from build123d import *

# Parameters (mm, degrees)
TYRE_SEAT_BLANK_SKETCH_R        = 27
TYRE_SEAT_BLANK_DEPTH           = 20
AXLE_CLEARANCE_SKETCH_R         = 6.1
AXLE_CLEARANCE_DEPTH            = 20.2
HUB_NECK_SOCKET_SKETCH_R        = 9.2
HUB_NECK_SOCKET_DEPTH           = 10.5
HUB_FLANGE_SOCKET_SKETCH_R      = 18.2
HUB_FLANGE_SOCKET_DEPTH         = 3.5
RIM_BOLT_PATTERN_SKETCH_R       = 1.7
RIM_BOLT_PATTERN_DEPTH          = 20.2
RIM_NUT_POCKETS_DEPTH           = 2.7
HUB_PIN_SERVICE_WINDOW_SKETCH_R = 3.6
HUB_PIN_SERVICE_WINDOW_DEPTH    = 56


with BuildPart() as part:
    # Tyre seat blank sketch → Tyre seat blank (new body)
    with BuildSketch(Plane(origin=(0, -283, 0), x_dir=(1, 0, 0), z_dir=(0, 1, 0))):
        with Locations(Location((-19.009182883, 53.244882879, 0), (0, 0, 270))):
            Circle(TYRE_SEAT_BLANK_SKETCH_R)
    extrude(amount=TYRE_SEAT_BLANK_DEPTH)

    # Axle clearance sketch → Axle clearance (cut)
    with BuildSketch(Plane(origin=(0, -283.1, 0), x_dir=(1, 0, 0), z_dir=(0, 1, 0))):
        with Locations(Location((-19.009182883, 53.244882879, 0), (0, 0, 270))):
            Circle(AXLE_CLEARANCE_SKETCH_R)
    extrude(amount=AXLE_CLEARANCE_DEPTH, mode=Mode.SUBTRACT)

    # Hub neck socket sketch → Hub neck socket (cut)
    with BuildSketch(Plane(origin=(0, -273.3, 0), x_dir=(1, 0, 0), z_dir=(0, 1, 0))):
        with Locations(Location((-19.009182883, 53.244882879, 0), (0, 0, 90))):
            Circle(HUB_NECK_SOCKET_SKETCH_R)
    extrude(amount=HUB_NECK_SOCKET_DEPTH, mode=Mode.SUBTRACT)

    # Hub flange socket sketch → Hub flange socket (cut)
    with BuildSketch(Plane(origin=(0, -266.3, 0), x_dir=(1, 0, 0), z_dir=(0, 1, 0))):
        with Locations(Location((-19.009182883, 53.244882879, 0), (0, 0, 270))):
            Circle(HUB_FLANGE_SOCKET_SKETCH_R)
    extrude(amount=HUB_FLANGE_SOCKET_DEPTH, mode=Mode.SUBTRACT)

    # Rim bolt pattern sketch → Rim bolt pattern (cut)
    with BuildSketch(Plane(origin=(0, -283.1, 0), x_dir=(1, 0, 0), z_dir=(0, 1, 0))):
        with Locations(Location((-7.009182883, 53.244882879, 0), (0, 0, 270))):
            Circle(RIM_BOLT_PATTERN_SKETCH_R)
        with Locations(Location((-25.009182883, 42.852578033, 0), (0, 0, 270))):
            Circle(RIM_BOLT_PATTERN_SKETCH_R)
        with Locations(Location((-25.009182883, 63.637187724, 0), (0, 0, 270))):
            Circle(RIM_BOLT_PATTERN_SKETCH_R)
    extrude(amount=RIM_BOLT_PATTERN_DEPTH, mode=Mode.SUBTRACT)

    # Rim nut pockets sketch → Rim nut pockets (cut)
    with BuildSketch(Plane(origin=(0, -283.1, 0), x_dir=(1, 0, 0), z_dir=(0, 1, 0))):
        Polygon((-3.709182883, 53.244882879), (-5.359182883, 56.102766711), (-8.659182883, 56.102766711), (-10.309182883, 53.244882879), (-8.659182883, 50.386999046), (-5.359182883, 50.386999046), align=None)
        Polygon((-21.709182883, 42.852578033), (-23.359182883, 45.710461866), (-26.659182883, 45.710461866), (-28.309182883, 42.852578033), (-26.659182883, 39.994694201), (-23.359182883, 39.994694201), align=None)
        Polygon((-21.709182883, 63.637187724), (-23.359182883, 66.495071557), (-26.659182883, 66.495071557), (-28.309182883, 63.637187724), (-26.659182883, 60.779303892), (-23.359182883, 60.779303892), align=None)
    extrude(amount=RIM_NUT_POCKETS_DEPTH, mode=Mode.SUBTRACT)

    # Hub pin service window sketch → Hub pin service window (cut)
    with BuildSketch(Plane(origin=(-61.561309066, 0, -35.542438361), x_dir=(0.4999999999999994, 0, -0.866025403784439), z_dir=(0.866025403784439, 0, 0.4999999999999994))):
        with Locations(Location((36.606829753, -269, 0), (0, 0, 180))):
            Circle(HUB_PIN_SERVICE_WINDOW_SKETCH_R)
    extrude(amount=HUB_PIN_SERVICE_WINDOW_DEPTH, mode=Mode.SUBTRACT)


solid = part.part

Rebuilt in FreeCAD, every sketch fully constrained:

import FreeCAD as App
import Part
import Sketcher

V = App.Vector
Q = App.Units.Quantity


def add_polygon(sketch, points):
    """Adds a closed chain of lines whose ends are joined by coincident constraints."""
    first, n = sketch.GeometryCount, len(points)
    for a, b in zip(points, points[1:] + points[:1]):
        sketch.addGeometry(Part.LineSegment(App.Vector(*a, 0), App.Vector(*b, 0)), False)
    for i in range(n):
        sketch.addConstraint(Sketcher.Constraint("Coincident", first + i, 2, first + (i + 1) % n, 1))

doc = App.newDocument("Part")
params = doc.addObject("Spreadsheet::Sheet", "Params")
for row, (alias, value) in enumerate([
    ("sketch1_diameter", "54 mm"),
    ("pad1_length", "20 mm"),
    ("sketch2_diameter", "12.2 mm"),
    ("pocket1_length", "20.2 mm"),
    ("sketch3_diameter", "18.4 mm"),
    ("pocket2_length", "10.5 mm"),
    ("sketch4_diameter", "36.4 mm"),
    ("pocket3_length", "3.5 mm"),
    ("sketch5_diameter", "3.4 mm"),
    ("pocket4_length", "20.2 mm"),
    ("sketch6_width", "3.3 mm"),
    ("sketch6_length", "3.3 mm"),
    ("pocket5_length", "2.7 mm"),
    ("sketch7_diameter", "7.2 mm"),
    ("pocket6_length", "56 mm"),
], start=1):
    params.set(f"A{row}", alias)
    params.set(f"B{row}", "=" + value)
    params.setAlias(f"B{row}", alias)

body = doc.addObject("PartDesign::Body", "Body")

sketch1 = body.newObject("Sketcher::SketchObject", "Sketch")
sketch1.AttachmentSupport = (doc.getObject("XZ_Plane"), [""])
sketch1.MapMode = "FlatFace"
sketch1.AttachmentOffset = App.Placement(V(0, 0, 283), App.Rotation())
sketch1.addGeometry(Part.Circle(V(-19, -53, 0), V(0, 0, 1), 27), False)
sketch1.addConstraint([
    Sketcher.Constraint("Diameter", 0, 54.0),
    Sketcher.Constraint("DistanceX", 0, 3, -1, 1, 19.009183),
    Sketcher.Constraint("DistanceY", 0, 3, -1, 1, 53.244883),
])
sketch1.setExpression("Constraints[0]", "Params.sketch1_diameter")
pad1 = body.newObject("PartDesign::Pad", "Pad")
pad1.Profile = sketch1
pad1.setExpression("Length", "Params.pad1_length")
pad1.Reversed = True

sketch2 = body.newObject("Sketcher::SketchObject", "Sketch001")
sketch2.AttachmentSupport = (doc.getObject("XZ_Plane"), [""])
sketch2.MapMode = "FlatFace"
sketch2.AttachmentOffset = App.Placement(V(0, 0, 283.1), App.Rotation())
sketch2.addGeometry(Part.Circle(V(-19, -53, 0), V(0, 0, 1), 6), False)
sketch2.addConstraint([
    Sketcher.Constraint("Diameter", 0, 12.2),
    Sketcher.Constraint("DistanceX", 0, 3, -1, 1, 19.009183),
    Sketcher.Constraint("DistanceY", 0, 3, -1, 1, 53.244883),
])
sketch2.setExpression("Constraints[0]", "Params.sketch2_diameter")
pocket1 = body.newObject("PartDesign::Pocket", "Pocket")
pocket1.Profile = sketch2
pocket1.setExpression("Length", "Params.pocket1_length")

sketch3 = body.newObject("Sketcher::SketchObject", "Sketch002")
sketch3.AttachmentSupport = (doc.getObject("XZ_Plane"), [""])
sketch3.MapMode = "FlatFace"
sketch3.AttachmentOffset = App.Placement(V(0, 0, 273.3), App.Rotation())
sketch3.addGeometry(Part.Circle(V(-19, -53, 0), V(0, 0, 1), 9), False)
sketch3.addConstraint([
    Sketcher.Constraint("Diameter", 0, 18.4),
    Sketcher.Constraint("DistanceX", 0, 3, -1, 1, 19.009183),
    Sketcher.Constraint("DistanceY", 0, 3, -1, 1, 53.244883),
])
sketch3.setExpression("Constraints[0]", "Params.sketch3_diameter")
pocket2 = body.newObject("PartDesign::Pocket", "Pocket001")
pocket2.Profile = sketch3
pocket2.setExpression("Length", "Params.pocket2_length")

sketch4 = body.newObject("Sketcher::SketchObject", "Sketch003")
sketch4.AttachmentSupport = (doc.getObject("XZ_Plane"), [""])
sketch4.MapMode = "FlatFace"
sketch4.AttachmentOffset = App.Placement(V(0, 0, 266.3), App.Rotation())
sketch4.addGeometry(Part.Circle(V(-19, -53, 0), V(0, 0, 1), 18), False)
sketch4.addConstraint([
    Sketcher.Constraint("Diameter", 0, 36.4),
    Sketcher.Constraint("DistanceX", 0, 3, -1, 1, 19.009183),
    Sketcher.Constraint("DistanceY", 0, 3, -1, 1, 53.244883),
])
sketch4.setExpression("Constraints[0]", "Params.sketch4_diameter")
pocket3 = body.newObject("PartDesign::Pocket", "Pocket002")
pocket3.Profile = sketch4
pocket3.setExpression("Length", "Params.pocket3_length")

sketch5 = body.newObject("Sketcher::SketchObject", "Sketch004")
sketch5.AttachmentSupport = (doc.getObject("XZ_Plane"), [""])
sketch5.MapMode = "FlatFace"
sketch5.AttachmentOffset = App.Placement(V(0, 0, 283.1), App.Rotation())
sketch5.addGeometry([
    Part.Circle(V(-7, -53.2, 0), V(0, 0, 1), 1.7),
    Part.Circle(V(-25, -42.9, 0), V(0, 0, 1), 1.7),
    Part.Circle(V(-25, -63.6, 0), V(0, 0, 1), 1.7),
], False)
sketch5.addConstraint([
    Sketcher.Constraint("Equal", 0, 1),
    Sketcher.Constraint("Equal", 1, 2),
    Sketcher.Constraint("Vertical", 1, 3, 2, 3),
    Sketcher.Constraint("Diameter", 0, 3.4),
    Sketcher.Constraint("DistanceX", 1, 3, 0, 3, 18.0),
    Sketcher.Constraint("DistanceY", 1, 3, -1, 1, 42.852578),
    Sketcher.Constraint("DistanceY", 2, 3, 1, 3, 20.78461),
    Sketcher.Constraint("DistanceX", 0, 3, -1, 1, 7.009183),
    Sketcher.Constraint("DistanceY", 0, 3, -1, 1, 53.244883),
])
sketch5.setExpression("Constraints[3]", "Params.sketch5_diameter")
pocket4 = body.newObject("PartDesign::Pocket", "Pocket003")
pocket4.Profile = sketch5
pocket4.setExpression("Length", "Params.pocket4_length")

sketch6 = body.newObject("Sketcher::SketchObject", "Sketch005")
sketch6.AttachmentSupport = (doc.getObject("XZ_Plane"), [""])
sketch6.MapMode = "FlatFace"
sketch6.AttachmentOffset = App.Placement(V(0, 0, 283.1), App.Rotation())
add_polygon(sketch6, [(-3.7, -53.2), (-5.4, -56.1), (-8.7, -56.1), (-10.3, -53.2), (-8.7, -50.4), (-5.4, -50.4)])
add_polygon(sketch6, [(-21.7, -42.9), (-23.4, -45.7), (-26.7, -45.7), (-28.3, -42.9), (-26.7, -40), (-23.4, -40)])
add_polygon(sketch6, [(-21.7, -63.6), (-23.4, -66.5), (-26.7, -66.5), (-28.3, -63.6), (-26.7, -60.8), (-23.4, -60.8)])
sketch6.addConstraint([
    Sketcher.Constraint("Horizontal", 1),
    Sketcher.Constraint("Horizontal", 4),
    Sketcher.Constraint("Horizontal", 7),
    Sketcher.Constraint("Horizontal", 10),
    Sketcher.Constraint("Horizontal", 13),
    Sketcher.Constraint("Horizontal", 16),
    Sketcher.Constraint("Parallel", 0, 3),
    Sketcher.Constraint("Parallel", 2, 5),
    Sketcher.Constraint("Parallel", 3, 6),
    Sketcher.Constraint("Parallel", 5, 8),
    Sketcher.Constraint("Parallel", 6, 9),
    Sketcher.Constraint("Parallel", 8, 11),
    Sketcher.Constraint("Parallel", 9, 12),
    Sketcher.Constraint("Parallel", 11, 14),
    Sketcher.Constraint("Parallel", 12, 15),
    Sketcher.Constraint("Parallel", 14, 17),
    Sketcher.Constraint("Horizontal", 2, 2, 5, 2),
    Sketcher.Constraint("Horizontal", 8, 2, 11, 2),
    Sketcher.Constraint("Horizontal", 14, 2, 17, 2),
    Sketcher.Constraint("Vertical", 1, 2, 3, 2),
    Sketcher.Constraint("Vertical", 0, 2, 4, 2),
    Sketcher.Constraint("Vertical", 7, 2, 9, 2),
    Sketcher.Constraint("Vertical", 10, 2, 12, 2),
    Sketcher.Constraint("Vertical", 9, 2, 13, 2),
    Sketcher.Constraint("Vertical", 8, 2, 14, 2),
    Sketcher.Constraint("Vertical", 13, 2, 15, 2),
    Sketcher.Constraint("Equal", 4, 7),
    Sketcher.Constraint("Equal", 5, 6),
    Sketcher.Constraint("Angle", 0, Q("-120 deg")),
    Sketcher.Constraint("DistanceX", 1, 2, 1, 1, 3.3),
    Sketcher.Constraint("DistanceX", 6, 2, 4, 2, 18.0),
    Sketcher.Constraint("Distance", 0, 3.3),
    Sketcher.Constraint("DistanceY", 3, 2, -1, 1, 50.386999),
    Sketcher.Constraint("DistanceY", 6, 2, -1, 1, 45.710462),
    Sketcher.Constraint("DistanceY", 12, 2, -1, 1, 66.495072),
    Sketcher.Constraint("DistanceX", 0, 2, -1, 1, 5.359183),
])
sketch6.setExpression("Constraints[47]", "Params.sketch6_width")
sketch6.setExpression("Constraints[49]", "Params.sketch6_length")
pocket5 = body.newObject("PartDesign::Pocket", "Pocket004")
pocket5.Profile = sketch6
pocket5.setExpression("Length", "Params.pocket5_length")

sketch7 = body.newObject("Sketcher::SketchObject", "Sketch006")
sketch7.Placement = App.Placement(V(-61.561309, 0, -35.542438), App.Rotation(V(0.5, 0, -0.866025404), V(0, 1, 0), V(0.866025404, 0, 0.5), "ZXY"))
sketch7.addGeometry(Part.Circle(V(36.6, -269, 0), V(0, 0, 1), 3.6), False)
sketch7.addConstraint([
    Sketcher.Constraint("Diameter", 0, 7.2),
    Sketcher.Constraint("DistanceY", 0, 3, -1, 1, 269.0),
    Sketcher.Constraint("DistanceX", -1, 1, 0, 3, 36.60683),
])
sketch7.setExpression("Constraints[0]", "Params.sketch7_diameter")
pocket6 = body.newObject("PartDesign::Pocket", "Pocket005")
pocket6.Profile = sketch7
pocket6.setExpression("Length", "Params.pocket6_length")
pocket6.Reversed = True

doc.recompute()
